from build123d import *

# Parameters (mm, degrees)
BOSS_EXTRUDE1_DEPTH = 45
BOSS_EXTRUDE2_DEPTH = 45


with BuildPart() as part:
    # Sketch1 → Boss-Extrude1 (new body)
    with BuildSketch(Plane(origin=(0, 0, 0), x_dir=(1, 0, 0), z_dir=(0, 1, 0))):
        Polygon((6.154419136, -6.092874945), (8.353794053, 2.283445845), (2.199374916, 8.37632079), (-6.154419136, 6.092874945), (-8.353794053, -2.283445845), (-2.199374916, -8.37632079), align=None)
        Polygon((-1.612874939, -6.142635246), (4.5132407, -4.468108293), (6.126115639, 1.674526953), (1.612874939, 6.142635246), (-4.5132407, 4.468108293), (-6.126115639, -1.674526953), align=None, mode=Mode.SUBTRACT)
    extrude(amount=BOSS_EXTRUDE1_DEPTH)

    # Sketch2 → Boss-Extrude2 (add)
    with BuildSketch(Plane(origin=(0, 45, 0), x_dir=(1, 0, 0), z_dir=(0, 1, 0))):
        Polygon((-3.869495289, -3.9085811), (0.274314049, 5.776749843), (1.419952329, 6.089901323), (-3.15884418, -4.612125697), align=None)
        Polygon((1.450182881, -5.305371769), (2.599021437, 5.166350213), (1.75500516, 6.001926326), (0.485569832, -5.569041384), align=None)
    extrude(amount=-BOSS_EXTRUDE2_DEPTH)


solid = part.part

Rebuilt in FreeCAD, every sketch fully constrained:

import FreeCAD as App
import Part
import Sketcher

V = App.Vector
Q = App.Units.Quantity

doc = App.newDocument("Part")
body = doc.addObject("PartDesign::Body", "Body")

sketch1 = body.newObject("Sketcher::SketchObject", "Sketch")
sketch1.AttachmentSupport = (doc.getObject("XZ_Plane"), [""])
sketch1.MapMode = "FlatFace"
sketch1.addGeometry([
    Part.LineSegment(V(6, 6, 0), V(8, -2, 0)),
    Part.LineSegment(V(8, -2, 0), V(2, -8, 0)),
    Part.LineSegment(V(2, -8, 0), V(-6, -6, 0)),
    Part.LineSegment(V(-6, -6, 0), V(-8, 2, 0)),
    Part.LineSegment(V(-8, 2, 0), V(-2, 8, 0)),
    Part.LineSegment(V(-2, 8, 0), V(6, 6, 0)),
    Part.LineSegment(V(5, 4, 0), V(-2, 6, 0)),
    Part.LineSegment(V(-2, 6, 0), V(-6, 2, 0)),
    Part.LineSegment(V(-6, 2, 0), V(-5, -4, 0)),
    Part.LineSegment(V(-5, -4, 0), V(2, -6, 0)),
    Part.LineSegment(V(2, -6, 0), V(6, -2, 0)),
    Part.LineSegment(V(6, -2, 0), V(5, 4, 0)),
], False)
sketch1.addConstraint([
    Sketcher.Constraint("Coincident", 0, 2, 1, 1),
    Sketcher.Constraint("Coincident", 1, 2, 2, 1),
    Sketcher.Constraint("Coincident", 2, 2, 3, 1),
    Sketcher.Constraint("Coincident", 3, 2, 4, 1),
    Sketcher.Constraint("Coincident", 4, 2, 5, 1),
    Sketcher.Constraint("Coincident", 5, 2, 0, 1),
    Sketcher.Constraint("Coincident", 6, 2, 7, 1),
    Sketcher.Constraint("Coincident", 7, 2, 8, 1),
    Sketcher.Constraint("Coincident", 8, 2, 9, 1),
    Sketcher.Constraint("Coincident", 9, 2, 10, 1),
    Sketcher.Constraint("Coincident", 10, 2, 11, 1),
    Sketcher.Constraint("Coincident", 11, 2, 6, 1),
    Sketcher.Constraint("Symmetric", 0, 2, 3, 2, -1, 1),
    Sketcher.Constraint("Symmetric", 1, 2, 4, 2, -1, 1),
    Sketcher.Constraint("Symmetric", 2, 2, 5, 2, -1, 1),
    Sketcher.Constraint("Symmetric", 6, 2, 9, 2, -1, 1),
    Sketcher.Constraint("Symmetric", 7, 2, 10, 2, -1, 1),
    Sketcher.Constraint("Symmetric", 8, 2, 11, 2, -1, 1),
    Sketcher.Constraint("Parallel", 5, 6),
    Sketcher.Constraint("Parallel", 4, 7),
    Sketcher.Constraint("Parallel", 3, 8),
    Sketcher.Constraint("Equal", 0, 1),
    Sketcher.Constraint("Equal", 1, 2),
    Sketcher.Constraint("Equal", 6, 7),
    Sketcher.Constraint("Equal", 7, 8),
    Sketcher.Constraint("DistanceX", 4, 2, 6, 2, Q("0.5865 mm")),
    Sketcher.Constraint("DistanceY", 2, 2, 7, 2, Q("7.767402 mm")),
    Sketcher.Constraint("DistanceY", 1, 2, -1, 1, Q("8.376321 mm")),
    Sketcher.Constraint("DistanceX", 2, 2, -1, 1, Q("6.154419 mm")),
    Sketcher.Constraint("DistanceX", 8, 2, -1, 1, Q("4.513241 mm")),
])
pad1 = body.newObject("PartDesign::Pad", "Pad")
pad1.Profile = sketch1
pad1.Length = 45
pad1.Reversed = True

sketch2 = body.newObject("Sketcher::SketchObject", "Sketch001")
sketch2.AttachmentSupport = (doc.getObject("XZ_Plane"), [""])
sketch2.MapMode = "FlatFace"
sketch2.AttachmentOffset = App.Placement(V(0, 0, -45), App.Rotation())
sketch2.addGeometry([
    Part.LineSegment(V(0.3, -5.8, 0), V(-3.9, 3.9, 0)),
    Part.LineSegment(V(-3.9, 3.9, 0), V(-3.2, 4.6, 0)),
    Part.LineSegment(V(-3.2, 4.6, 0), V(1.4, -6.1, 0)),
    Part.LineSegment(V(1.4, -6.1, 0), V(0.3, -5.8, 0)),
    Part.LineSegment(V(1.5, 5.3, 0), V(2.6, -5.2, 0)),
    Part.LineSegment(V(2.6, -5.2, 0), V(1.8, -6, 0)),
    Part.LineSegment(V(1.8, -6, 0), V(0.5, 5.6, 0)),
    Part.LineSegment(V(0.5, 5.6, 0), V(1.5, 5.3, 0)),
], False)
sketch2.addConstraint([
    Sketcher.Constraint("Coincident", 0, 2, 1, 1),
    Sketcher.Constraint("Coincident", 1, 2, 2, 1),
    Sketcher.Constraint("Coincident", 2, 2, 3, 1),
    Sketcher.Constraint("Coincident", 3, 2, 0, 1),
    Sketcher.Constraint("Coincident", 4, 2, 5, 1),
    Sketcher.Constraint("Coincident", 5, 2, 6, 1),
    Sketcher.Constraint("Coincident", 6, 2, 7, 1),
    Sketcher.Constraint("Coincident", 7, 2, 4, 1),
    Sketcher.Constraint("Parallel", 0, 2),
    Sketcher.Constraint("Parallel", 1, 5),
    Sketcher.Constraint("Parallel", 4, 6),
    Sketcher.Constraint("Parallel", 3, 7),
    Sketcher.Constraint("Equal", 0, 4),
    Sketcher.Constraint("Equal", 3, 5),
    Sketcher.Constraint("Equal", 2, 6),
    Sketcher.Constraint("Distance", 1, Q("1 mm")),
    Sketcher.Constraint("DistanceY", 2, 2, -1, 1, Q("6.089901 mm")),
    Sketcher.Constraint("DistanceY", 3, 2, 4, 2, Q("0.6104 mm")),
    Sketcher.Constraint("DistanceX", 0, 2, 5, 2, Q("5.6245 mm")),
    Sketcher.Constraint("DistanceY", -1, 1, 0, 2, Q("3.908581 mm")),
    Sketcher.Constraint("DistanceY", 3, 2, -1, 1, Q("5.77675 mm")),
    Sketcher.Constraint("DistanceX", -1, 1, 4, 2, Q("2.599021 mm")),
    Sketcher.Constraint("DistanceX", -1, 1, 6, 2, Q("0.48557 mm")),
    Sketcher.Constraint("DistanceY", -1, 1, 6, 2, Q("5.569041 mm")),
])
pad2 = body.newObject("PartDesign::Pad", "Pad001")
pad2.Profile = sketch2
pad2.Length = 45

doc.recompute()
